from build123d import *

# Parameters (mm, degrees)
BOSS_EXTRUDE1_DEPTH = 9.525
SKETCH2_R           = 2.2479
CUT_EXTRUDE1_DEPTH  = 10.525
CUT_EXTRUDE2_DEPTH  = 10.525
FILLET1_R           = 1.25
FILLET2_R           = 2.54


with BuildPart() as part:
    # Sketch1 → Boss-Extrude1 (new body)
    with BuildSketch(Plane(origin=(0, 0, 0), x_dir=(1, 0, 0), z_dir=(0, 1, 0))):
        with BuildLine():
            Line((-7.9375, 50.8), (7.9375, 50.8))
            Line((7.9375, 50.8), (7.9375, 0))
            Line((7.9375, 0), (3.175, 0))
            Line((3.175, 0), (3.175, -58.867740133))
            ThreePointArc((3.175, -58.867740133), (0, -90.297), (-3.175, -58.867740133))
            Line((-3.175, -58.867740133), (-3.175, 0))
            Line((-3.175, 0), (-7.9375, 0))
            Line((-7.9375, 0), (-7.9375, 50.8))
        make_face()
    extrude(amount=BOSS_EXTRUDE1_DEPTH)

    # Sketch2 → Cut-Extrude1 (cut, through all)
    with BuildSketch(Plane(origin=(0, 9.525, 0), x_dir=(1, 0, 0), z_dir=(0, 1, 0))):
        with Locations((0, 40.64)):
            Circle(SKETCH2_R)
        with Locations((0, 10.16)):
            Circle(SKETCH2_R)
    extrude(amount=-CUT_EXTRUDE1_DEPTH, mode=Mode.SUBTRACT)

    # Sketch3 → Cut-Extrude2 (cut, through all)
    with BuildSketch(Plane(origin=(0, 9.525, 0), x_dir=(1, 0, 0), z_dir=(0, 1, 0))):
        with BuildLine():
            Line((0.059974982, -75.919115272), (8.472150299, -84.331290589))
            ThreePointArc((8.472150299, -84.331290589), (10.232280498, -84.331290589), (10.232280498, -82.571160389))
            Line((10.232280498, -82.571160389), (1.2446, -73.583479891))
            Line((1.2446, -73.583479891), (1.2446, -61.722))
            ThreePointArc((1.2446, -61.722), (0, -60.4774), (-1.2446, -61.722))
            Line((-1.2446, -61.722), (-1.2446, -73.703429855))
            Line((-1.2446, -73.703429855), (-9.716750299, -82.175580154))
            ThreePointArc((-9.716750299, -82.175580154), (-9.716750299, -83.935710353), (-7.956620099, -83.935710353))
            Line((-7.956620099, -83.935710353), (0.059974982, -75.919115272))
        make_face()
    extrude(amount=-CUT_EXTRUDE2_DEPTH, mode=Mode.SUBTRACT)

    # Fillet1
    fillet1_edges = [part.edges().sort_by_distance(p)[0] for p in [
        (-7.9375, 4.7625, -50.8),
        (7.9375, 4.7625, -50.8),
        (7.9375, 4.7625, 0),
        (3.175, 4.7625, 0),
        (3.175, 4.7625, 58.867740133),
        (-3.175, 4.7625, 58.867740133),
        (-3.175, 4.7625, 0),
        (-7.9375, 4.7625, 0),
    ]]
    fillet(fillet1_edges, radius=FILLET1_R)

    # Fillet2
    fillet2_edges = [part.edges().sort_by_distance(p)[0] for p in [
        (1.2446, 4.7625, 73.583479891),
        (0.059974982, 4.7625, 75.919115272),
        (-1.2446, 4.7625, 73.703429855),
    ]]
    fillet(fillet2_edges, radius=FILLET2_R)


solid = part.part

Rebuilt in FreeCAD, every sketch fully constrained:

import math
import FreeCAD as App
import Part
import Sketcher
Q = App.Units.Quantity


def edges_at(feature, points):
    """Names of the edges that pass closest to the given points."""
    edges = feature.Shape.Edges
    near = lambda p: min(range(len(edges)), key=lambda i: edges[i].distToShape(Part.Vertex(*p))[0])
    return sorted({f"Edge{near(p) + 1}" for p in points})

doc = App.newDocument("Part")
body = doc.addObject("PartDesign::Body", "Body")

sketch1 = body.newObject("Sketcher::SketchObject", "Sketch")
sketch1.AttachmentSupport = (doc.getObject("XZ_Plane"), [""])
sketch1.MapMode = "FlatFace"
sketch1.addGeometry([
    Part.LineSegment(App.Vector(7.9, -50.8, 0), App.Vector(-7.9, -50.8, 0)),
    Part.LineSegment(App.Vector(-7.9, -50.8, 0), App.Vector(-7.9, 0, 0)),
    Part.LineSegment(App.Vector(-7.9, 0, 0), App.Vector(-3.2, 0, 0)),
    Part.LineSegment(App.Vector(-3.2, 0, 0), App.Vector(-3.2, 58.9, 0)),
    Part.ArcOfCircle(Part.Circle(App.Vector(0, 74.4, 0), App.Vector(0, 0, 1), 15.9), math.radians(-78), math.radians(258)),
    Part.LineSegment(App.Vector(3.2, 58.9, 0), App.Vector(3.2, 0, 0)),
    Part.LineSegment(App.Vector(3.2, 0, 0), App.Vector(7.9, 0, 0)),
    Part.LineSegment(App.Vector(7.9, 0, 0), App.Vector(7.9, -50.8, 0)),
], False)
sketch1.addConstraint([
    Sketcher.Constraint("Coincident", 0, 2, 1, 1),
    Sketcher.Constraint("Coincident", 1, 2, 2, 1),
    Sketcher.Constraint("Coincident", 2, 2, 3, 1),
    Sketcher.Constraint("Coincident", 3, 2, 4, 2),
    Sketcher.Constraint("Coincident", 4, 1, 5, 1),
    Sketcher.Constraint("Coincident", 5, 2, 6, 1),
    Sketcher.Constraint("Coincident", 6, 2, 7, 1),
    Sketcher.Constraint("Coincident", 7, 2, 0, 1),
    Sketcher.Constraint("Horizontal", 0),
    Sketcher.Constraint("Vertical", 1),
    Sketcher.Constraint("Horizontal", 2),
    Sketcher.Constraint("Vertical", 3),
    Sketcher.Constraint("Vertical", 5),
    Sketcher.Constraint("Horizontal", 6),
    Sketcher.Constraint("Vertical", 7),
    Sketcher.Constraint("Symmetric", 2, 2, 5, 2, -1, 1),
    Sketcher.Constraint("Symmetric", 1, 2, 6, 2, -2),
    Sketcher.Constraint("PointOnObject", 4, 3, -2),
    Sketcher.Constraint("DistanceY", 1, 1, 1, 2, Q("2 in")),
    Sketcher.Constraint("Radius", 4, Q("0.625 in")),
    Sketcher.Constraint("DistanceX", 0, 2, 0, 1, Q("0.625 in")),
    Sketcher.Constraint("DistanceX", 2, 1, 2, 2, Q("0.1875 in")),
    Sketcher.Constraint("DistanceY", -1, 1, 4, 3, Q("2.93 in")),
])
pad1 = body.newObject("PartDesign::Pad", "Pad")
pad1.Profile = sketch1
pad1.Length = Q("0.375 in")
pad1.Reversed = True

sketch2 = body.newObject("Sketcher::SketchObject", "Sketch001")
sketch2.AttachmentSupport = (doc.getObject("XZ_Plane"), [""])
sketch2.MapMode = "FlatFace"
sketch2.AttachmentOffset = App.Placement(App.Vector(0, 0, -0.375 * 25.4), App.Rotation())
sketch2.addGeometry([
    Part.Circle(App.Vector(0, -40.6, 0), App.Vector(0, 0, 1), 2.2),
    Part.Circle(App.Vector(0, -10.2, 0), App.Vector(0, 0, 1), 2.2),
], False)
sketch2.addConstraint([
    Sketcher.Constraint("Equal", 0, 1),
    Sketcher.Constraint("PointOnObject", 0, 3, -2),
    Sketcher.Constraint("PointOnObject", 1, 3, -2),
    Sketcher.Constraint("Diameter", 0, Q("0.177 in")),
    Sketcher.Constraint("DistanceY", 0, 3, -1, 1, Q("1.6 in")),
    Sketcher.Constraint("DistanceY", 1, 3, -1, 1, Q("0.4 in")),
])
pocket1 = body.newObject("PartDesign::Pocket", "Pocket")
pocket1.Profile = sketch2
pocket1.Type = "ThroughAll"
pocket1.Reversed = True

sketch3 = body.newObject("Sketcher::SketchObject", "Sketch002")
sketch3.AttachmentSupport = (doc.getObject("XZ_Plane"), [""])
sketch3.MapMode = "FlatFace"
sketch3.AttachmentOffset = App.Placement(App.Vector(0, 0, -0.375 * 25.4), App.Rotation())
sketch3.addGeometry([
    Part.LineSegment(App.Vector(0.1, 75.9, 0), App.Vector(8.5, 84.3, 0)),
    Part.ArcOfCircle(Part.Circle(App.Vector(9.4, 83.5, 0), App.Vector(0, 0, 1), 1.2), math.radians(-45), math.radians(135)),
    Part.LineSegment(App.Vector(10.2, 82.6, 0), App.Vector(1.2, 73.6, 0)),
    Part.LineSegment(App.Vector(1.2, 73.6, 0), App.Vector(1.2, 61.7, 0)),
    Part.ArcOfCircle(Part.Circle(App.Vector(0, 61.7, 0), App.Vector(0, 0, 1), 1.2), math.radians(180), math.radians(360)),
    Part.LineSegment(App.Vector(-1.2, 61.7, 0), App.Vector(-1.2, 73.7, 0)),
    Part.LineSegment(App.Vector(-1.2, 73.7, 0), App.Vector(-9.7, 82.2, 0)),
    Part.ArcOfCircle(Part.Circle(App.Vector(-8.8, 83.1, 0), App.Vector(0, 0, 1), 1.2), math.radians(45), math.radians(225)),
    Part.LineSegment(App.Vector(-8, 83.9, 0), App.Vector(0.1, 75.9, 0)),
], False)
sketch3.addConstraint([
    Sketcher.Constraint("Tangent", 0, 2, 1, 2),
    Sketcher.Constraint("Tangent", 1, 1, 2, 1),
    Sketcher.Constraint("Coincident", 2, 2, 3, 1),
    Sketcher.Constraint("Tangent", 3, 2, 4, 2),
    Sketcher.Constraint("Tangent", 4, 1, 5, 1),
    Sketcher.Constraint("Coincident", 5, 2, 6, 1),
    Sketcher.Constraint("Tangent", 6, 2, 7, 2),
    Sketcher.Constraint("Tangent", 7, 1, 8, 1),
    Sketcher.Constraint("Coincident", 8, 2, 0, 1),
    Sketcher.Constraint("Vertical", 3),
    Sketcher.Constraint("Vertical", 5),
    Sketcher.Constraint("Equal", 1, 4),
    Sketcher.Constraint("Equal", 4, 7),
    Sketcher.Constraint("PointOnObject", 4, 3, -2),
    Sketcher.Constraint("Parallel", 0, 2),
    Sketcher.Constraint("Perpendicular", 2, 6),
    Sketcher.Constraint("Parallel", 6, 8),
    Sketcher.Constraint("Angle", 0, Q("45 deg")),
    Sketcher.Constraint("Radius", 1, Q("0.049 in")),
    Sketcher.Constraint("DistanceY", -1, 1, 4, 3, Q("2.43 in")),
    Sketcher.Constraint("Distance", 2, 12.7105),
    Sketcher.Constraint("DistanceY", 3, 2, 3, 1, 11.86148),
    Sketcher.Constraint("DistanceY", 5, 1, 5, 2, 11.98143),
    Sketcher.Constraint("DistanceX", 7, 3, 1, 3, 18.188901),
])
pocket2 = body.newObject("PartDesign::Pocket", "Pocket001")
pocket2.Profile = sketch3
pocket2.Type = "ThroughAll"
pocket2.Reversed = True
doc.recompute()

fillet = body.newObject("PartDesign::Fillet", "Fillet")
fillet.Base = (pocket2, edges_at(pocket2, [
    (-7.938, 4.763, -50.8),
    (7.938, 4.763, -50.8),
    (7.938, 4.763, 0),
    (3.175, 4.763, 0),
    (3.175, 4.763, 58.868),
    (-3.175, 4.763, 58.868),
    (-3.175, 4.763, 0),
    (-7.938, 4.763, 0),
]))
fillet.Radius = 1.25
doc.recompute()

fillet2 = body.newObject("PartDesign::Fillet", "Fillet001")
fillet2.Base = (fillet, edges_at(fillet, [(1.245, 4.763, 73.583), (0.06, 4.763, 75.919), (-1.245, 4.763, 73.703)]))
fillet2.Radius = Q("0.1 in")

doc.recompute()
